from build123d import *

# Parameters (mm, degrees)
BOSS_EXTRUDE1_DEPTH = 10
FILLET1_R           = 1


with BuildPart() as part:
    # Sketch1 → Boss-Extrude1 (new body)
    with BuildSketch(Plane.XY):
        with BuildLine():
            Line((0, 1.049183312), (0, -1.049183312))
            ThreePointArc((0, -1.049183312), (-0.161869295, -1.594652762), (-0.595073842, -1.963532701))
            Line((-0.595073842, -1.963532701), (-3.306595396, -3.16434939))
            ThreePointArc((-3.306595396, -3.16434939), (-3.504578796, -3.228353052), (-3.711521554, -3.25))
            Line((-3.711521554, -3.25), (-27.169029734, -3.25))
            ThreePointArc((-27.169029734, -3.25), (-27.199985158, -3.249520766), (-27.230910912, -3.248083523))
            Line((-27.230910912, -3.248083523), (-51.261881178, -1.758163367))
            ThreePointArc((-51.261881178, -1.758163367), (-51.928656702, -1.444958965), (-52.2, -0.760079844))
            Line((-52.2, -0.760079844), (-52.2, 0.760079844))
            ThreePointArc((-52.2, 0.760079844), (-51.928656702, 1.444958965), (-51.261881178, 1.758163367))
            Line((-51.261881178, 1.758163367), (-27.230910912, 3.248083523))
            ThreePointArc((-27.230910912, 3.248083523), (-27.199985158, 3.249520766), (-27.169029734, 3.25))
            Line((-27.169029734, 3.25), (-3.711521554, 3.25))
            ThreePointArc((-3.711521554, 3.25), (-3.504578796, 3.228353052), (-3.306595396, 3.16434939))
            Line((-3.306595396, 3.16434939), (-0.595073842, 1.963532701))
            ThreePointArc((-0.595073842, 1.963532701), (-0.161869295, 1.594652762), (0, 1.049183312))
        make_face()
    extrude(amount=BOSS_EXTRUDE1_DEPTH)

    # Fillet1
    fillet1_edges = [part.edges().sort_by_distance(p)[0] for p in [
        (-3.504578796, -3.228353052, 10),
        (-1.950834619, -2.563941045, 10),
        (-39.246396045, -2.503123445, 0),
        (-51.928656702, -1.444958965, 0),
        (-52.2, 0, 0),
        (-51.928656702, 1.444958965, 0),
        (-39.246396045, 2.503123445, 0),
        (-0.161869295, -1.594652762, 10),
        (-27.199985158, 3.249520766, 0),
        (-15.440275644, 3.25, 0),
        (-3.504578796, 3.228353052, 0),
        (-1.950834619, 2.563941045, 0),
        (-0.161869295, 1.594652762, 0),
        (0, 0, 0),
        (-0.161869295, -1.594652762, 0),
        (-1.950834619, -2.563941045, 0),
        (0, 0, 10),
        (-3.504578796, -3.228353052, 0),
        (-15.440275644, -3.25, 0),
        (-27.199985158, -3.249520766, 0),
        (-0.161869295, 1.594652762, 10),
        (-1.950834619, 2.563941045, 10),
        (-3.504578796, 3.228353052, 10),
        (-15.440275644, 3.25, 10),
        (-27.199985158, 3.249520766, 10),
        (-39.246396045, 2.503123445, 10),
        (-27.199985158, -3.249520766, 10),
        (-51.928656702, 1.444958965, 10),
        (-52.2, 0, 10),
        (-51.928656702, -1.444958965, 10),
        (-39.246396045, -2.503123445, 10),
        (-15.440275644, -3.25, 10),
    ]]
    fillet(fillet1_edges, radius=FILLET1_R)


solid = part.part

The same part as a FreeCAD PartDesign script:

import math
import FreeCAD as App
import Part
import Sketcher
Q = App.Units.Quantity


def edges_at(feature, points):
    """Names of the edges that pass closest to the given points."""
    edges = feature.Shape.Edges
    near = lambda p: min(range(len(edges)), key=lambda i: edges[i].distToShape(Part.Vertex(*p))[0])
    return sorted({f"Edge{near(p) + 1}" for p in points})

doc = App.newDocument("Part")
body = doc.addObject("PartDesign::Body", "Body")

sketch1 = doc.addObject("Sketcher::SketchObject", "Sketch")
body.addObject(sketch1)
sketch1.AttachmentSupport = (doc.XY_Plane, [""])
sketch1.MapMode = "FlatFace"
sketch1.addGeometry([
    Part.LineSegment(App.Vector(0, -1.05, 0), App.Vector(0, 1.05, 0)),
    Part.ArcOfCircle(Part.Circle(App.Vector(-1, 1.05, 0), App.Vector(0, 0, 1), 1), math.radians(0), math.radians(66)),
    Part.LineSegment(App.Vector(-0.6, 1.96, 0), App.Vector(-3.31, 3.16, 0)),
    Part.ArcOfCircle(Part.Circle(App.Vector(-3.71, 2.25, 0), App.Vector(0, 0, 1), 1), math.radians(66), math.radians(90)),
    Part.LineSegment(App.Vector(-3.71, 3.25, 0), App.Vector(-27.17, 3.25, 0)),
    Part.ArcOfCircle(Part.Circle(App.Vector(-27.17, 2.25, 0), App.Vector(0, 0, 1), 1), math.radians(90), math.radians(93.55)),
    Part.LineSegment(App.Vector(-27.23, 3.25, 0), App.Vector(-51.26, 1.76, 0)),
    Part.ArcOfCircle(Part.Circle(App.Vector(-51.2, 0.76, 0), App.Vector(0, 0, 1), 1), math.radians(94), math.radians(180)),
    Part.LineSegment(App.Vector(-52.2, 0.76, 0), App.Vector(-52.2, -0.76, 0)),
    Part.ArcOfCircle(Part.Circle(App.Vector(-51.2, -0.76, 0), App.Vector(0, 0, 1), 1), math.radians(180), math.radians(266)),
    Part.LineSegment(App.Vector(-51.26, -1.76, 0), App.Vector(-27.23, -3.25, 0)),
    Part.ArcOfCircle(Part.Circle(App.Vector(-27.17, -2.25, 0), App.Vector(0, 0, 1), 1), math.radians(-93.55), math.radians(-90)),
    Part.LineSegment(App.Vector(-27.17, -3.25, 0), App.Vector(-3.71, -3.25, 0)),
    Part.ArcOfCircle(Part.Circle(App.Vector(-3.71, -2.25, 0), App.Vector(0, 0, 1), 1), math.radians(-90), math.radians(-66)),
    Part.LineSegment(App.Vector(-3.31, -3.16, 0), App.Vector(-0.6, -1.96, 0)),
    Part.ArcOfCircle(Part.Circle(App.Vector(-1, -1.05, 0), App.Vector(0, 0, 1), 1), math.radians(-66), math.radians(0)),
], False)
sketch1.addConstraint([
    Sketcher.Constraint("Tangent", 0, 2, 1, 1),
    Sketcher.Constraint("Tangent", 1, 2, 2, 1),
    Sketcher.Constraint("Tangent", 2, 2, 3, 1),
    Sketcher.Constraint("Tangent", 3, 2, 4, 1),
    Sketcher.Constraint("Tangent", 4, 2, 5, 1),
    Sketcher.Constraint("Tangent", 5, 2, 6, 1),
    Sketcher.Constraint("Tangent", 6, 2, 7, 1),
    Sketcher.Constraint("Tangent", 7, 2, 8, 1),
    Sketcher.Constraint("Tangent", 8, 2, 9, 1),
    Sketcher.Constraint("Tangent", 9, 2, 10, 1),
    Sketcher.Constraint("Tangent", 10, 2, 11, 1),
    Sketcher.Constraint("Tangent", 11, 2, 12, 1),
    Sketcher.Constraint("Tangent", 12, 2, 13, 1),
    Sketcher.Constraint("Tangent", 13, 2, 14, 1),
    Sketcher.Constraint("Tangent", 14, 2, 15, 1),
    Sketcher.Constraint("Tangent", 15, 2, 0, 1),
    Sketcher.Constraint("Vertical", 0),
    Sketcher.Constraint("Horizontal", 4),
    Sketcher.Constraint("Vertical", 8),
    Sketcher.Constraint("Horizontal", 12),
    Sketcher.Constraint("Equal", 1, 3),
    Sketcher.Constraint("Equal", 3, 5),
    Sketcher.Constraint("Equal", 5, 7),
    Sketcher.Constraint("Equal", 7, 9),
    Sketcher.Constraint("Equal", 9, 11),
    Sketcher.Constraint("Equal", 11, 13),
    Sketcher.Constraint("Equal", 13, 15),
    Sketcher.Constraint("Symmetric", 0, 2, 15, 2, -1, 1),
    Sketcher.Constraint("Symmetric", 5, 3, 11, 3, -1),
    Sketcher.Constraint("Vertical", 3, 3, 13, 3),
    Sketcher.Constraint("Vertical", 6, 2, 9, 2),
    Sketcher.Constraint("Radius", 1, Q("1 mm")),
    Sketcher.Constraint("DistanceX", 7, 3, -1, 1, Q("51.2 mm")),
    Sketcher.Constraint("DistanceY", 11, 3, 5, 3, Q("4.500001 mm")),
    Sketcher.Constraint("DistanceX", 4, 2, 4, 1, Q("23.457508 mm")),
    Sketcher.Constraint("DistanceY", 8, 2, 8, 1, Q("1.52016 mm")),
    Sketcher.Constraint("Distance", 2, Q("2.96552 mm")),
    Sketcher.Constraint("DistanceY", 0, 1, 0, 2, Q("2.098367 mm")),
])
pad1 = doc.addObject("PartDesign::Pad", "Pad")
body.addObject(pad1)
pad1.Profile = sketch1
pad1.Length = 10
doc.recompute()

fillet = doc.addObject("PartDesign::Fillet", "Fillet")
body.addObject(fillet)
fillet.Base = (pad1, edges_at(pad1, [
    (-3.505, -3.228, 10),
    (-1.951, -2.564, 10),
    (-39.246, -2.503, 0),
    (-51.929, -1.445, 0),
    (-52.2, 0, 0),
    (-51.929, 1.445, 0),
    (-39.246, 2.503, 0),
    (-0.162, -1.595, 10),
    (-27.2, 3.25, 0),
    (-15.44, 3.25, 0),
    (-3.505, 3.228, 0),
    (-1.951, 2.564, 0),
    (-0.162, 1.595, 0),
    (0, 0, 0),
    (-0.162, -1.595, 0),
    (-1.951, -2.564, 0),
    (0, 0, 10),
    (-3.505, -3.228, 0),
    (-15.44, -3.25, 0),
    (-27.2, -3.25, 0),
    (-0.162, 1.595, 10),
    (-1.951, 2.564, 10),
    (-3.505, 3.228, 10),
    (-15.44, 3.25, 10),
    (-27.2, 3.25, 10),
    (-39.246, 2.503, 10),
    (-27.2, -3.25, 10),
    (-51.929, 1.445, 10),
    (-52.2, 0, 10),
    (-51.929, -1.445, 10),
    (-39.246, -2.503, 10),
    (-15.44, -3.25, 10),
]))
fillet.Radius = 1

doc.recompute()
